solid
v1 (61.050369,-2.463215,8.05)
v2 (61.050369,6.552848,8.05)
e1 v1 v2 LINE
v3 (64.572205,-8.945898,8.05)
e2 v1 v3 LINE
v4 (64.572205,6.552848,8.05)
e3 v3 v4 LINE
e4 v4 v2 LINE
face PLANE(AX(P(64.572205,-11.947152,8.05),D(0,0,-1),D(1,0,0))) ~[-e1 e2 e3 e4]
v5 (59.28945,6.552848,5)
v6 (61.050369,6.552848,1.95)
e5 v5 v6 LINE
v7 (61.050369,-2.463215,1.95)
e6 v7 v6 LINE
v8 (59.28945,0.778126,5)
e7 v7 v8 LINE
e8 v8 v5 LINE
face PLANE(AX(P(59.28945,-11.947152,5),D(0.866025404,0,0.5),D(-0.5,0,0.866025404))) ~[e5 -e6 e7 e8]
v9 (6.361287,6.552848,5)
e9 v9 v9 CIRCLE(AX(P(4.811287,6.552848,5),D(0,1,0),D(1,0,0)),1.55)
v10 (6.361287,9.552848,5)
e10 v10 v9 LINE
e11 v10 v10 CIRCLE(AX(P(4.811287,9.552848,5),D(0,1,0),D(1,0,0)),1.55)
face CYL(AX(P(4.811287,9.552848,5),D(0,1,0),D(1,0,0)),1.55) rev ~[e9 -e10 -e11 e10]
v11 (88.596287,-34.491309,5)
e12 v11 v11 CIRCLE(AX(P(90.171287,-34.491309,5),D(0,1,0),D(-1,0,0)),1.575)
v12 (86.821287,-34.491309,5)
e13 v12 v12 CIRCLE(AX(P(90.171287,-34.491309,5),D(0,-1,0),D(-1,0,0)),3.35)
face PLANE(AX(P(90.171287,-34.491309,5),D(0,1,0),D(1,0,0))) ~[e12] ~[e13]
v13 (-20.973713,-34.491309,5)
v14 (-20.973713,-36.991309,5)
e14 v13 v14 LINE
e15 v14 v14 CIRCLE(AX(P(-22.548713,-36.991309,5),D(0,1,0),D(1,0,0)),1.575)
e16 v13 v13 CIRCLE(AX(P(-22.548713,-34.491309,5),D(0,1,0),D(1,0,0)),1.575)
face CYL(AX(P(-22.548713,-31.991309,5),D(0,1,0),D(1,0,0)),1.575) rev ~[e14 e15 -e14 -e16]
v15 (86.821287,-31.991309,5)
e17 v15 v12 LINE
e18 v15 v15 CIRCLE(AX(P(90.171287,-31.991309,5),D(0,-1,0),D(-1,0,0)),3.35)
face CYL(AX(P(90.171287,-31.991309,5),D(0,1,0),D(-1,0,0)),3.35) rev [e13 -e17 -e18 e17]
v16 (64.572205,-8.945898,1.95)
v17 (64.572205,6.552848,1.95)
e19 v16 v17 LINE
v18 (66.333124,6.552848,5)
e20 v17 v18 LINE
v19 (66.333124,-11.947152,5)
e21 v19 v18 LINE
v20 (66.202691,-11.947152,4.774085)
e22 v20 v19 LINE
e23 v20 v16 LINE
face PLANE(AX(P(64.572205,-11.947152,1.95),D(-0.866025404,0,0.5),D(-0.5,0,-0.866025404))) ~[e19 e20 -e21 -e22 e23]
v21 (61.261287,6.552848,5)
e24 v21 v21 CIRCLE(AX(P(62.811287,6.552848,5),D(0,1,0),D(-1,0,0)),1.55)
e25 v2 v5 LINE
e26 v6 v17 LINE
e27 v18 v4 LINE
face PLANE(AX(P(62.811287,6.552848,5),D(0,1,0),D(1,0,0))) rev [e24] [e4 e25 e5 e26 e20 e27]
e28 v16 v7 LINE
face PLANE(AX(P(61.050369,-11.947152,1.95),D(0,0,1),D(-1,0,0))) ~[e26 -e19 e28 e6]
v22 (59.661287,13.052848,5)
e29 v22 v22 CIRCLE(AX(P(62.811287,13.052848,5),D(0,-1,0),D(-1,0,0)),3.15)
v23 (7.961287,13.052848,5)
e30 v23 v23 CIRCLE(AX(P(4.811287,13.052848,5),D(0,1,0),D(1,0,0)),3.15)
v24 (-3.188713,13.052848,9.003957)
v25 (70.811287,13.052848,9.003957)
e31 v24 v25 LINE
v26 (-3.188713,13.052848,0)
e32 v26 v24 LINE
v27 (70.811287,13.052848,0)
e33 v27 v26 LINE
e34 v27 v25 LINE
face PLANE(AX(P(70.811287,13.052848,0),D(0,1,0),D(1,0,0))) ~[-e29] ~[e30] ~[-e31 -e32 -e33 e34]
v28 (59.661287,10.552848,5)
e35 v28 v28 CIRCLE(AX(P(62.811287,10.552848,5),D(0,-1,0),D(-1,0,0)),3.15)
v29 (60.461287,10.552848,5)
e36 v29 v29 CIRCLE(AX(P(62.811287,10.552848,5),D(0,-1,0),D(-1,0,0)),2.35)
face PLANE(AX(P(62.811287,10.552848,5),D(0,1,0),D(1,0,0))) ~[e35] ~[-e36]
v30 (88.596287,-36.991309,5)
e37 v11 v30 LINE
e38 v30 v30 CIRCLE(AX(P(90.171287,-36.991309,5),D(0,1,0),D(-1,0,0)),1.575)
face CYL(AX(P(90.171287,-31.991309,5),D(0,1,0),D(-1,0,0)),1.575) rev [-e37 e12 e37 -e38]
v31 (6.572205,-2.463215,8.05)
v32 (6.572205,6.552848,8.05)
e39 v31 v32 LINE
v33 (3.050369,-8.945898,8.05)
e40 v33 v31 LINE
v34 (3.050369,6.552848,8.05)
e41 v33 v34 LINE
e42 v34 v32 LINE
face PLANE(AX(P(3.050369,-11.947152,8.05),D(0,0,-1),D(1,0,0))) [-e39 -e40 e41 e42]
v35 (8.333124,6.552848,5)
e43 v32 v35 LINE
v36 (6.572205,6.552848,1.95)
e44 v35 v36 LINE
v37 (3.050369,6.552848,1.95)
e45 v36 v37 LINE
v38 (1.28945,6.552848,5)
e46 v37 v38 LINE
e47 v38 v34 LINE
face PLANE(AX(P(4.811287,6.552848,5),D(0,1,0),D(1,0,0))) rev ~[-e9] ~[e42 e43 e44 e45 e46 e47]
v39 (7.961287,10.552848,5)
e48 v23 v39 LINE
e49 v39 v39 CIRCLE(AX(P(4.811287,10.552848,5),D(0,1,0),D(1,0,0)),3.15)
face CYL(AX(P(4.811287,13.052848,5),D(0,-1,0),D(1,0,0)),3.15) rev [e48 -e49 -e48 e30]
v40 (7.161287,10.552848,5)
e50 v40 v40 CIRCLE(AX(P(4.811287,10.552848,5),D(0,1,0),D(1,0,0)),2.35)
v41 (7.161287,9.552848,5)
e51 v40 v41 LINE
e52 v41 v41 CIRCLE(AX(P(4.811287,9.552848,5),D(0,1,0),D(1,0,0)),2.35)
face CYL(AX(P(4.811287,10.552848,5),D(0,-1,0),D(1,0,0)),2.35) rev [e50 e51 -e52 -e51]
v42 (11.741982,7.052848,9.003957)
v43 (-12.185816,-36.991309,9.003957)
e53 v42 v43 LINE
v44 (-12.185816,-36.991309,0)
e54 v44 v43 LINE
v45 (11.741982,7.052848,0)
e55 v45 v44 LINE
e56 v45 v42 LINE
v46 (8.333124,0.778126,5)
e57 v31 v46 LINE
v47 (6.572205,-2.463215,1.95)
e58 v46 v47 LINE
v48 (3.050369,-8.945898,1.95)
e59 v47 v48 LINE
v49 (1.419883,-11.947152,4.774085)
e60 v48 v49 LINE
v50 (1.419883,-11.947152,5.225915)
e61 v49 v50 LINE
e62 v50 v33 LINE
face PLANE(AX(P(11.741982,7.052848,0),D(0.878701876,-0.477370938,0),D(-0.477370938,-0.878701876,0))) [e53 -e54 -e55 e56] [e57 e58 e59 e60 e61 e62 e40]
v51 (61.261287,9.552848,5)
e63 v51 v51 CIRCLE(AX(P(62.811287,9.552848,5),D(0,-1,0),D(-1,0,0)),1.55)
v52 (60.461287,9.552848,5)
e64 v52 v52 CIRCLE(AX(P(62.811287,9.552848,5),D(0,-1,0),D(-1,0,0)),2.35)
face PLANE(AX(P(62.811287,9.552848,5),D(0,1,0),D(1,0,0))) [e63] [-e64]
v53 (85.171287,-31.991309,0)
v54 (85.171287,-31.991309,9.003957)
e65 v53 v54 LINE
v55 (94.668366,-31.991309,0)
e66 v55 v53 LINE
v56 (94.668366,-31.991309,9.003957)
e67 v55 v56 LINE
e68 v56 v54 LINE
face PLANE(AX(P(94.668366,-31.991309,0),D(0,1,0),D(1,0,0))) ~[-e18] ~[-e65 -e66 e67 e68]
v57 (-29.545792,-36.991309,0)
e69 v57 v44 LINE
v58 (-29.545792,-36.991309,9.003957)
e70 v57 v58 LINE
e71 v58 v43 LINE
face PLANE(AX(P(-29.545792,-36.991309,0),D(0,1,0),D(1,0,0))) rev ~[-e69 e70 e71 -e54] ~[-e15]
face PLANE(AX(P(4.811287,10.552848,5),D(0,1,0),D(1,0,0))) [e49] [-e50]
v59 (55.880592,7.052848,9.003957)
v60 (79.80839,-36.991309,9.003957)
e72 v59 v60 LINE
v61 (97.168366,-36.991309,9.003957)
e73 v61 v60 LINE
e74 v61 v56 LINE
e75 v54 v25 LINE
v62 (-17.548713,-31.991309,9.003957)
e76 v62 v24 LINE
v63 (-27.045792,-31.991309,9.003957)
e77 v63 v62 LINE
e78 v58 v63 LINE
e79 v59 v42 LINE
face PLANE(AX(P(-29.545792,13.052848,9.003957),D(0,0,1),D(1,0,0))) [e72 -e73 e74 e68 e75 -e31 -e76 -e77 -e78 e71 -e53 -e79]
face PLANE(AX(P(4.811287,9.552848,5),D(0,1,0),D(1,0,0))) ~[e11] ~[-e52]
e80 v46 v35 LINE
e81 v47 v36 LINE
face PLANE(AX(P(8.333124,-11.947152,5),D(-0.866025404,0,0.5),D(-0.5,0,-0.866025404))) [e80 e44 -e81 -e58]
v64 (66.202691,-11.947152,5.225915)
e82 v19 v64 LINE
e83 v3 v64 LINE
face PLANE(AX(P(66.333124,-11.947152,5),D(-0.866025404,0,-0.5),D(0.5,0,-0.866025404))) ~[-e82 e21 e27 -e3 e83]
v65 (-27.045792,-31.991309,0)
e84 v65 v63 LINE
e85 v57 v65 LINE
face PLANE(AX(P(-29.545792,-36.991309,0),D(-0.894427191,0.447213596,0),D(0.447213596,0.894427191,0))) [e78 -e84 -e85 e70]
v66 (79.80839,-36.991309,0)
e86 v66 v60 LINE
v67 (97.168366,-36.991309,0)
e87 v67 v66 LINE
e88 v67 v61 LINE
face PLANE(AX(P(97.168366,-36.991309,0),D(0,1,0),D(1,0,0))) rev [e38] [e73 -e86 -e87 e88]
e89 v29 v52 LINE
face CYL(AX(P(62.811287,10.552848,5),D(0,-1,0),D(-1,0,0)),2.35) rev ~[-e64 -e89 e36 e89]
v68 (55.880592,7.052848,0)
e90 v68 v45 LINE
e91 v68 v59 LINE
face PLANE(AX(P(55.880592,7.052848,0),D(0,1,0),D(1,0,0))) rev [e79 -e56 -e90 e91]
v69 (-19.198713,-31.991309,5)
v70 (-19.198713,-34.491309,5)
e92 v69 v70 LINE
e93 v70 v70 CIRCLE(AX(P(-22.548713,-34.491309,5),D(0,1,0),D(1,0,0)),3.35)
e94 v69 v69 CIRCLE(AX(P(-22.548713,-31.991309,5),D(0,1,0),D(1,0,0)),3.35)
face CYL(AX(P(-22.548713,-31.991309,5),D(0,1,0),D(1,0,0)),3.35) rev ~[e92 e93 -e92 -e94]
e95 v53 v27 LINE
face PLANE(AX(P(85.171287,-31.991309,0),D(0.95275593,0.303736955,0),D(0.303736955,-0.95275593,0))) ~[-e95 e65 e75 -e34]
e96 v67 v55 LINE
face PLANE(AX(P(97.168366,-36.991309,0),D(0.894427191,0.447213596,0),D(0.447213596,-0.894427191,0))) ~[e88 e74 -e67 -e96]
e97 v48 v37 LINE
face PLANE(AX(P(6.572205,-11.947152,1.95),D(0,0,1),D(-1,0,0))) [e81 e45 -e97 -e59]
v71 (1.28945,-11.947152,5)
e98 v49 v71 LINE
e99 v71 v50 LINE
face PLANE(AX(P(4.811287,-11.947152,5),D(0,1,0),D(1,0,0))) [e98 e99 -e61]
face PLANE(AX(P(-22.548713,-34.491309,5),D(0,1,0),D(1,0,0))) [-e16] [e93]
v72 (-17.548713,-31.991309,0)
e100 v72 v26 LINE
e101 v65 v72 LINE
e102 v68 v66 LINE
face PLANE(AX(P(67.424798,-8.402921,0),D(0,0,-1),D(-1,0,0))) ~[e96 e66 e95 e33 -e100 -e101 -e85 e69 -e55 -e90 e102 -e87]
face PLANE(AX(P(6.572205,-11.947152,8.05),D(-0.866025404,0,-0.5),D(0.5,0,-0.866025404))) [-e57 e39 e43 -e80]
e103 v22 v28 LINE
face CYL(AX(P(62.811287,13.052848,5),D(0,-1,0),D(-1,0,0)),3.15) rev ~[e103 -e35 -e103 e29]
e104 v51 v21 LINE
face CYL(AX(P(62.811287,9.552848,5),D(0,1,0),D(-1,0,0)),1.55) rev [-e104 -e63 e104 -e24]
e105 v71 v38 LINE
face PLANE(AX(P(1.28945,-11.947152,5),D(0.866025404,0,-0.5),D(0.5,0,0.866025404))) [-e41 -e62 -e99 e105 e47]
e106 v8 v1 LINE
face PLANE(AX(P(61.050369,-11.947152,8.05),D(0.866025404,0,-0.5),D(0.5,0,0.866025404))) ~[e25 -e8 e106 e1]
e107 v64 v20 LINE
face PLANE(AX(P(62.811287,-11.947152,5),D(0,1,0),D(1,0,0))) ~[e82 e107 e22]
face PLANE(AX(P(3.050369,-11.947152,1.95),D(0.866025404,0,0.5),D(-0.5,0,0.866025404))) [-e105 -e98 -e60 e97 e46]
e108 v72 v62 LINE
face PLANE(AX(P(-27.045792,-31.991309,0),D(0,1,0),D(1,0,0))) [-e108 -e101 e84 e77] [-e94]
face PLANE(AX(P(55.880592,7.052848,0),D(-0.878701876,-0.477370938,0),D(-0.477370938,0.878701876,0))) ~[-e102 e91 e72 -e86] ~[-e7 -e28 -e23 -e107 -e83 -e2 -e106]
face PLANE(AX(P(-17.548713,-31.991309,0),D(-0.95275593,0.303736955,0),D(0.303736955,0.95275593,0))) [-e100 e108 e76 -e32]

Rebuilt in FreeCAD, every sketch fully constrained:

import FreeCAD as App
import Part
import Sketcher

V = App.Vector
Q = App.Units.Quantity

doc = App.newDocument("Part")
body = doc.addObject("PartDesign::Body", "Body")

# Sketch on XY plane
sketch1 = doc.addObject("Sketcher::SketchObject", "Sketch")
body.addObject(sketch1)
sketch1.AttachmentSupport = (doc.XY_Plane, [""])
sketch1.MapMode = "FlatFace"
sketch1.addGeometry([
    Part.LineSegment(V(34, 13, 0), V(-3, 13, 0)),  # 0
    Part.LineSegment(V(-3, 13, 0), V(-18, -32, 0)),  # 1
    Part.LineSegment(V(-18, -32, 0), V(-27, -32, 0)),  # 2
    Part.LineSegment(V(-27, -32, 0), V(-30, -37, 0)),  # 3
    Part.LineSegment(V(-30, -37, 0), V(-12, -37, 0)),  # 4
    Part.LineSegment(V(-12, -37, 0), V(12, 7, 0)),  # 5
    Part.LineSegment(V(12, 7, 0), V(34, 7, 0)),  # 6
    Part.LineSegment(V(34, 7, 0), V(34, 13, 0)),  # 7
], False)
sketch1.addConstraint([
    Sketcher.Constraint("Coincident", 0, 2, 1, 1),
    Sketcher.Constraint("Coincident", 1, 2, 2, 1),
    Sketcher.Constraint("Coincident", 2, 2, 3, 1),
    Sketcher.Constraint("Coincident", 3, 2, 4, 1),
    Sketcher.Constraint("Coincident", 4, 2, 5, 1),
    Sketcher.Constraint("Coincident", 5, 2, 6, 1),
    Sketcher.Constraint("Coincident", 6, 2, 7, 1),
    Sketcher.Constraint("Coincident", 7, 2, 0, 1),
    Sketcher.Constraint("Horizontal", 0),
    Sketcher.Constraint("Horizontal", 2),
    Sketcher.Constraint("Horizontal", 4),
    Sketcher.Constraint("Horizontal", 6),
    Sketcher.Constraint("Vertical", 7),
    Sketcher.Constraint("DistanceX", 0, 2, 0, 1, Q("37 mm")),
    Sketcher.Constraint("DistanceY", 7, 1, 7, 2, Q("6 mm")),
    Sketcher.Constraint("DistanceY", 3, 2, 2, 2, Q("5 mm")),
    Sketcher.Constraint("DistanceX", 3, 2, 2, 2, Q("2.5 mm")),
    Sketcher.Constraint("DistanceX", 1, 2, 0, 2, Q("14.36 mm")),
    Sketcher.Constraint("DistanceX", 2, 2, 2, 1, Q("9.497079 mm")),
    Sketcher.Constraint("Distance", 1, Q("47.277751 mm")),
    Sketcher.Constraint("Distance", 5, Q("50.124119 mm")),
    Sketcher.Constraint("DistanceX", 4, 1, 4, 2, Q("17.359976 mm")),
    Sketcher.Constraint("DistanceY", -1, 1, 0, 2, Q("13.052848 mm")),
    Sketcher.Constraint("DistanceX", 2, 2, -1, 1, Q("27.045792 mm")),
])
pad1 = doc.addObject("PartDesign::Pad", "Pad")
body.addObject(pad1)
pad1.Profile = sketch1
pad1.Length = 10
doc.recompute()

datumplane = doc.addObject("PartDesign::Plane", "DatumPlane")
body.addObject(datumplane)
datumplane.AttachmentSupport = (doc.YZ_Plane, [""])
datumplane.MapMode = "FlatFace"
datumplane.AttachmentOffset = App.Placement(V(0, 0, 33.811287), App.Rotation())
mirrored = doc.addObject("PartDesign::Mirrored", "Mirrored")
body.addObject(mirrored)
mirrored.Originals = [pad1]
mirrored.MirrorPlane = (datumplane, [""])
body.Tip = mirrored

# Sketch on XY plane
sketch2 = doc.addObject("Sketcher::SketchObject", "Sketch001")
body.addObject(sketch2)
sketch2.AttachmentSupport = (doc.XY_Plane, [""])
sketch2.MapMode = "FlatFace"
sketch2.AttachmentOffset = App.Placement(V(0, 0, 5), App.Rotation())
sketch2.addGeometry([
    Part.LineSegment(V(8, 10.6, 0), V(8, 13.1, 0)),  # 0
    Part.LineSegment(V(8, 13.1, 0), V(4.8, 13.1, 0)),  # 1
    Part.LineSegment(V(4.8, 13.1, 0), V(4.8, 9.6, 0)),  # 2
    Part.LineSegment(V(4.8, 9.6, 0), V(7.2, 9.6, 0)),  # 3
    Part.LineSegment(V(7.2, 9.6, 0), V(7.2, 10.6, 0)),  # 4
    Part.LineSegment(V(7.2, 10.6, 0), V(8, 10.6, 0)),  # 5
], False)
sketch2.addGeometry(Part.LineSegment(V(4.8, 9.6, 0), V(4.8, 13.1, 0)), True)  # axis
sketch2.addConstraint([
    Sketcher.Constraint("Coincident", 0, 2, 1, 1),
    Sketcher.Constraint("Coincident", 1, 2, 2, 1),
    Sketcher.Constraint("Coincident", 2, 2, 3, 1),
    Sketcher.Constraint("Coincident", 3, 2, 4, 1),
    Sketcher.Constraint("Coincident", 4, 2, 5, 1),
    Sketcher.Constraint("Coincident", 5, 2, 0, 1),
    Sketcher.Constraint("Vertical", 0),
    Sketcher.Constraint("Horizontal", 1),
    Sketcher.Constraint("Vertical", 2),
    Sketcher.Constraint("Horizontal", 3),
    Sketcher.Constraint("Vertical", 4),
    Sketcher.Constraint("Horizontal", 5),
    Sketcher.Constraint("Vertical", 6),
    Sketcher.Constraint("Coincident", 6, 1, 2, 2),
    Sketcher.Constraint("Horizontal", 0, 2, 6, 2),
    Sketcher.Constraint("DistanceY", 4, 1, 4, 2, Q("1 mm")),
    Sketcher.Constraint("DistanceX", 5, 1, 5, 2, Q("0.8 mm")),
    Sketcher.Constraint("DistanceY", 0, 1, 0, 2, Q("2.5 mm")),
    Sketcher.Constraint("DistanceX", 1, 2, 1, 1, Q("3.15 mm")),
    Sketcher.Constraint("DistanceY", -1, 1, 0, 2, Q("13.052848 mm")),
    Sketcher.Constraint("DistanceX", -1, 1, 0, 2, Q("7.961287 mm")),
])
groove = doc.addObject("PartDesign::Groove", "Groove")
body.addObject(groove)
groove.Profile = sketch2
groove.ReferenceAxis = (sketch2, ["Axis0"])
groove.Angle = 360

# Sketch on XZ plane
sketch3 = doc.addObject("Sketcher::SketchObject", "Sketch002")
body.addObject(sketch3)
sketch3.AttachmentSupport = (doc.XZ_Plane, [""])
sketch3.MapMode = "FlatFace"
sketch3.AttachmentOffset = App.Placement(V(0, 0, -9.552848), App.Rotation())
sketch3.addGeometry(Part.Circle(V(4.8, 5, 0), V(0, 0, 1), 1.6), False)
sketch3.addConstraint([
    Sketcher.Constraint("Diameter", 0, Q("3.1 mm")),
    Sketcher.Constraint("DistanceY", -1, 1, 0, 3, Q("5 mm")),
    Sketcher.Constraint("DistanceX", -1, 1, 0, 3, Q("4.811287 mm")),
])
pocket1 = doc.addObject("PartDesign::Pocket", "Pocket")
body.addObject(pocket1)
pocket1.Profile = sketch3
pocket1.Type = "ThroughAll"
pocket1.Reversed = True

# Sketch on XZ plane
sketch4 = doc.addObject("Sketcher::SketchObject", "Sketch003")
body.addObject(sketch4)
sketch4.AttachmentSupport = (doc.XZ_Plane, [""])
sketch4.MapMode = "FlatFace"
sketch4.AttachmentOffset = App.Placement(V(0, 0, 11.947152), App.Rotation())
sketch4.addGeometry([
    Part.LineSegment(V(8.3, 5, 0), V(6.6, 1.9, 0)),  # 0
    Part.LineSegment(V(6.6, 1.9, 0), V(3.1, 1.9, 0)),  # 1
    Part.LineSegment(V(3.1, 1.9, 0), V(1.3, 5, 0)),  # 2
    Part.LineSegment(V(1.3, 5, 0), V(3.1, 8.1, 0)),  # 3
    Part.LineSegment(V(3.1, 8.1, 0), V(6.6, 8.1, 0)),  # 4
    Part.LineSegment(V(6.6, 8.1, 0), V(8.3, 5, 0)),  # 5
], False)
sketch4.addConstraint([
    Sketcher.Constraint("Coincident", 0, 2, 1, 1),
    Sketcher.Constraint("Coincident", 1, 2, 2, 1),
    Sketcher.Constraint("Coincident", 2, 2, 3, 1),
    Sketcher.Constraint("Coincident", 3, 2, 4, 1),
    Sketcher.Constraint("Coincident", 4, 2, 5, 1),
    Sketcher.Constraint("Coincident", 5, 2, 0, 1),
    Sketcher.Constraint("Horizontal", 1),
    Sketcher.Constraint("Horizontal", 4),
    Sketcher.Constraint("Parallel", 0, 3),
    Sketcher.Constraint("Parallel", 2, 5),
    Sketcher.Constraint("Horizontal", 2, 2, 5, 2),
    Sketcher.Constraint("Vertical", 1, 2, 3, 2),
    Sketcher.Constraint("Vertical", 0, 2, 4, 2),
    Sketcher.Constraint("Angle", 0, Q("-120 deg")),
    Sketcher.Constraint("DistanceY", -1, 1, 2, 2, Q("5 mm")),
    Sketcher.Constraint("DistanceY", 1, 2, 3, 2, Q("6.1 mm")),
    Sketcher.Constraint("DistanceX", 1, 2, 1, 1, Q("3.521837 mm")),
    Sketcher.Constraint("DistanceX", -1, 1, 1, 2, Q("3.050369 mm")),
])
pocket2 = doc.addObject("PartDesign::Pocket", "Pocket001")
body.addObject(pocket2)
pocket2.Profile = sketch4
pocket2.Length = 18.5

# Sketch on XZ plane
sketch5 = doc.addObject("Sketcher::SketchObject", "Sketch004")
body.addObject(sketch5)
sketch5.AttachmentSupport = (doc.XZ_Plane, [""])
sketch5.MapMode = "FlatFace"
sketch5.AttachmentOffset = App.Placement(V(0, 0, -13.052848), App.Rotation())
sketch5.addGeometry([
    Part.LineSegment(V(-29.5, 9, 0), V(-29.5, 10, 0)),
    Part.LineSegment(V(-29.5, 10, 0), V(97.2, 10, 0)),
    Part.LineSegment(V(97.2, 10, 0), V(97.2, 9, 0)),
    Part.LineSegment(V(97.2, 9, 0), V(-29.5, 9, 0)),
], False)
sketch5.addConstraint([
    Sketcher.Constraint("Coincident", 0, 2, 1, 1),
    Sketcher.Constraint("Coincident", 1, 2, 2, 1),
    Sketcher.Constraint("Coincident", 2, 2, 3, 1),
    Sketcher.Constraint("Coincident", 3, 2, 0, 1),
    Sketcher.Constraint("Vertical", 0),
    Sketcher.Constraint("Horizontal", 1),
    Sketcher.Constraint("Vertical", 2),
    Sketcher.Constraint("Horizontal", 3),
    Sketcher.Constraint("DistanceY", -1, 1, 0, 2, Q("10 mm")),
    Sketcher.Constraint("DistanceX", 1, 1, 1, 2, Q("126.714157 mm")),
    Sketcher.Constraint("DistanceY", 0, 1, 0, 2, Q("0.996043 mm")),
    Sketcher.Constraint("DistanceX", 0, 2, -1, 1, Q("29.545792 mm")),
])
pocket3 = doc.addObject("PartDesign::Pocket", "Pocket002")
body.addObject(pocket3)
pocket3.Profile = sketch5
pocket3.Type = "ThroughAll"
pocket3.Reversed = True

# Sketch on XZ plane
sketch6 = doc.addObject("Sketcher::SketchObject", "Sketch005")
body.addObject(sketch6)
sketch6.AttachmentSupport = (doc.XZ_Plane, [""])
sketch6.MapMode = "FlatFace"
sketch6.AttachmentOffset = App.Placement(V(0, 0, 31.991309), App.Rotation())
sketch6.addGeometry(Part.Circle(V(-22.5, 5, 0), V(0, 0, 1), 1.6), False)
sketch6.addConstraint([
    Sketcher.Constraint("Diameter", 0, Q("3.15 mm")),
    Sketcher.Constraint("DistanceY", -1, 1, 0, 3, Q("5 mm")),
    Sketcher.Constraint("DistanceX", 0, 3, -1, 1, Q("22.548713 mm")),
])
pocket4 = doc.addObject("PartDesign::Pocket", "Pocket003")
body.addObject(pocket4)
pocket4.Profile = sketch6
pocket4.Length = 10
pocket4.Reversed = True

# Sketch on XZ plane
sketch7 = doc.addObject("Sketcher::SketchObject", "Sketch006")
body.addObject(sketch7)
sketch7.AttachmentSupport = (doc.XZ_Plane, [""])
sketch7.MapMode = "FlatFace"
sketch7.AttachmentOffset = App.Placement(V(0, 0, 31.991309), App.Rotation())
sketch7.addGeometry(Part.Circle(V(-22.5, 5, 0), V(0, 0, 1), 3.4), False)
sketch7.addConstraint([
    Sketcher.Constraint("Diameter", 0, Q("6.7 mm")),
    Sketcher.Constraint("DistanceY", -1, 1, 0, 3, Q("5 mm")),
    Sketcher.Constraint("DistanceX", 0, 3, -1, 1, Q("22.548713 mm")),
])
pocket5 = doc.addObject("PartDesign::Pocket", "Pocket004")
body.addObject(pocket5)
pocket5.Profile = sketch7
pocket5.Length = 2.5
pocket5.Reversed = True
doc.recompute()

datumplane2 = doc.addObject("PartDesign::Plane", "DatumPlane001")
body.addObject(datumplane2)
datumplane2.AttachmentSupport = (doc.YZ_Plane, [""])
datumplane2.MapMode = "FlatFace"
datumplane2.AttachmentOffset = App.Placement(V(0, 0, 33.811287), App.Rotation())
mirrored2 = doc.addObject("PartDesign::Mirrored", "Mirrored001")
body.addObject(mirrored2)
mirrored2.Originals = [groove, pocket1, pocket2, pocket4, pocket5]
mirrored2.MirrorPlane = (datumplane2, [""])
body.Tip = mirrored2

doc.recompute()
